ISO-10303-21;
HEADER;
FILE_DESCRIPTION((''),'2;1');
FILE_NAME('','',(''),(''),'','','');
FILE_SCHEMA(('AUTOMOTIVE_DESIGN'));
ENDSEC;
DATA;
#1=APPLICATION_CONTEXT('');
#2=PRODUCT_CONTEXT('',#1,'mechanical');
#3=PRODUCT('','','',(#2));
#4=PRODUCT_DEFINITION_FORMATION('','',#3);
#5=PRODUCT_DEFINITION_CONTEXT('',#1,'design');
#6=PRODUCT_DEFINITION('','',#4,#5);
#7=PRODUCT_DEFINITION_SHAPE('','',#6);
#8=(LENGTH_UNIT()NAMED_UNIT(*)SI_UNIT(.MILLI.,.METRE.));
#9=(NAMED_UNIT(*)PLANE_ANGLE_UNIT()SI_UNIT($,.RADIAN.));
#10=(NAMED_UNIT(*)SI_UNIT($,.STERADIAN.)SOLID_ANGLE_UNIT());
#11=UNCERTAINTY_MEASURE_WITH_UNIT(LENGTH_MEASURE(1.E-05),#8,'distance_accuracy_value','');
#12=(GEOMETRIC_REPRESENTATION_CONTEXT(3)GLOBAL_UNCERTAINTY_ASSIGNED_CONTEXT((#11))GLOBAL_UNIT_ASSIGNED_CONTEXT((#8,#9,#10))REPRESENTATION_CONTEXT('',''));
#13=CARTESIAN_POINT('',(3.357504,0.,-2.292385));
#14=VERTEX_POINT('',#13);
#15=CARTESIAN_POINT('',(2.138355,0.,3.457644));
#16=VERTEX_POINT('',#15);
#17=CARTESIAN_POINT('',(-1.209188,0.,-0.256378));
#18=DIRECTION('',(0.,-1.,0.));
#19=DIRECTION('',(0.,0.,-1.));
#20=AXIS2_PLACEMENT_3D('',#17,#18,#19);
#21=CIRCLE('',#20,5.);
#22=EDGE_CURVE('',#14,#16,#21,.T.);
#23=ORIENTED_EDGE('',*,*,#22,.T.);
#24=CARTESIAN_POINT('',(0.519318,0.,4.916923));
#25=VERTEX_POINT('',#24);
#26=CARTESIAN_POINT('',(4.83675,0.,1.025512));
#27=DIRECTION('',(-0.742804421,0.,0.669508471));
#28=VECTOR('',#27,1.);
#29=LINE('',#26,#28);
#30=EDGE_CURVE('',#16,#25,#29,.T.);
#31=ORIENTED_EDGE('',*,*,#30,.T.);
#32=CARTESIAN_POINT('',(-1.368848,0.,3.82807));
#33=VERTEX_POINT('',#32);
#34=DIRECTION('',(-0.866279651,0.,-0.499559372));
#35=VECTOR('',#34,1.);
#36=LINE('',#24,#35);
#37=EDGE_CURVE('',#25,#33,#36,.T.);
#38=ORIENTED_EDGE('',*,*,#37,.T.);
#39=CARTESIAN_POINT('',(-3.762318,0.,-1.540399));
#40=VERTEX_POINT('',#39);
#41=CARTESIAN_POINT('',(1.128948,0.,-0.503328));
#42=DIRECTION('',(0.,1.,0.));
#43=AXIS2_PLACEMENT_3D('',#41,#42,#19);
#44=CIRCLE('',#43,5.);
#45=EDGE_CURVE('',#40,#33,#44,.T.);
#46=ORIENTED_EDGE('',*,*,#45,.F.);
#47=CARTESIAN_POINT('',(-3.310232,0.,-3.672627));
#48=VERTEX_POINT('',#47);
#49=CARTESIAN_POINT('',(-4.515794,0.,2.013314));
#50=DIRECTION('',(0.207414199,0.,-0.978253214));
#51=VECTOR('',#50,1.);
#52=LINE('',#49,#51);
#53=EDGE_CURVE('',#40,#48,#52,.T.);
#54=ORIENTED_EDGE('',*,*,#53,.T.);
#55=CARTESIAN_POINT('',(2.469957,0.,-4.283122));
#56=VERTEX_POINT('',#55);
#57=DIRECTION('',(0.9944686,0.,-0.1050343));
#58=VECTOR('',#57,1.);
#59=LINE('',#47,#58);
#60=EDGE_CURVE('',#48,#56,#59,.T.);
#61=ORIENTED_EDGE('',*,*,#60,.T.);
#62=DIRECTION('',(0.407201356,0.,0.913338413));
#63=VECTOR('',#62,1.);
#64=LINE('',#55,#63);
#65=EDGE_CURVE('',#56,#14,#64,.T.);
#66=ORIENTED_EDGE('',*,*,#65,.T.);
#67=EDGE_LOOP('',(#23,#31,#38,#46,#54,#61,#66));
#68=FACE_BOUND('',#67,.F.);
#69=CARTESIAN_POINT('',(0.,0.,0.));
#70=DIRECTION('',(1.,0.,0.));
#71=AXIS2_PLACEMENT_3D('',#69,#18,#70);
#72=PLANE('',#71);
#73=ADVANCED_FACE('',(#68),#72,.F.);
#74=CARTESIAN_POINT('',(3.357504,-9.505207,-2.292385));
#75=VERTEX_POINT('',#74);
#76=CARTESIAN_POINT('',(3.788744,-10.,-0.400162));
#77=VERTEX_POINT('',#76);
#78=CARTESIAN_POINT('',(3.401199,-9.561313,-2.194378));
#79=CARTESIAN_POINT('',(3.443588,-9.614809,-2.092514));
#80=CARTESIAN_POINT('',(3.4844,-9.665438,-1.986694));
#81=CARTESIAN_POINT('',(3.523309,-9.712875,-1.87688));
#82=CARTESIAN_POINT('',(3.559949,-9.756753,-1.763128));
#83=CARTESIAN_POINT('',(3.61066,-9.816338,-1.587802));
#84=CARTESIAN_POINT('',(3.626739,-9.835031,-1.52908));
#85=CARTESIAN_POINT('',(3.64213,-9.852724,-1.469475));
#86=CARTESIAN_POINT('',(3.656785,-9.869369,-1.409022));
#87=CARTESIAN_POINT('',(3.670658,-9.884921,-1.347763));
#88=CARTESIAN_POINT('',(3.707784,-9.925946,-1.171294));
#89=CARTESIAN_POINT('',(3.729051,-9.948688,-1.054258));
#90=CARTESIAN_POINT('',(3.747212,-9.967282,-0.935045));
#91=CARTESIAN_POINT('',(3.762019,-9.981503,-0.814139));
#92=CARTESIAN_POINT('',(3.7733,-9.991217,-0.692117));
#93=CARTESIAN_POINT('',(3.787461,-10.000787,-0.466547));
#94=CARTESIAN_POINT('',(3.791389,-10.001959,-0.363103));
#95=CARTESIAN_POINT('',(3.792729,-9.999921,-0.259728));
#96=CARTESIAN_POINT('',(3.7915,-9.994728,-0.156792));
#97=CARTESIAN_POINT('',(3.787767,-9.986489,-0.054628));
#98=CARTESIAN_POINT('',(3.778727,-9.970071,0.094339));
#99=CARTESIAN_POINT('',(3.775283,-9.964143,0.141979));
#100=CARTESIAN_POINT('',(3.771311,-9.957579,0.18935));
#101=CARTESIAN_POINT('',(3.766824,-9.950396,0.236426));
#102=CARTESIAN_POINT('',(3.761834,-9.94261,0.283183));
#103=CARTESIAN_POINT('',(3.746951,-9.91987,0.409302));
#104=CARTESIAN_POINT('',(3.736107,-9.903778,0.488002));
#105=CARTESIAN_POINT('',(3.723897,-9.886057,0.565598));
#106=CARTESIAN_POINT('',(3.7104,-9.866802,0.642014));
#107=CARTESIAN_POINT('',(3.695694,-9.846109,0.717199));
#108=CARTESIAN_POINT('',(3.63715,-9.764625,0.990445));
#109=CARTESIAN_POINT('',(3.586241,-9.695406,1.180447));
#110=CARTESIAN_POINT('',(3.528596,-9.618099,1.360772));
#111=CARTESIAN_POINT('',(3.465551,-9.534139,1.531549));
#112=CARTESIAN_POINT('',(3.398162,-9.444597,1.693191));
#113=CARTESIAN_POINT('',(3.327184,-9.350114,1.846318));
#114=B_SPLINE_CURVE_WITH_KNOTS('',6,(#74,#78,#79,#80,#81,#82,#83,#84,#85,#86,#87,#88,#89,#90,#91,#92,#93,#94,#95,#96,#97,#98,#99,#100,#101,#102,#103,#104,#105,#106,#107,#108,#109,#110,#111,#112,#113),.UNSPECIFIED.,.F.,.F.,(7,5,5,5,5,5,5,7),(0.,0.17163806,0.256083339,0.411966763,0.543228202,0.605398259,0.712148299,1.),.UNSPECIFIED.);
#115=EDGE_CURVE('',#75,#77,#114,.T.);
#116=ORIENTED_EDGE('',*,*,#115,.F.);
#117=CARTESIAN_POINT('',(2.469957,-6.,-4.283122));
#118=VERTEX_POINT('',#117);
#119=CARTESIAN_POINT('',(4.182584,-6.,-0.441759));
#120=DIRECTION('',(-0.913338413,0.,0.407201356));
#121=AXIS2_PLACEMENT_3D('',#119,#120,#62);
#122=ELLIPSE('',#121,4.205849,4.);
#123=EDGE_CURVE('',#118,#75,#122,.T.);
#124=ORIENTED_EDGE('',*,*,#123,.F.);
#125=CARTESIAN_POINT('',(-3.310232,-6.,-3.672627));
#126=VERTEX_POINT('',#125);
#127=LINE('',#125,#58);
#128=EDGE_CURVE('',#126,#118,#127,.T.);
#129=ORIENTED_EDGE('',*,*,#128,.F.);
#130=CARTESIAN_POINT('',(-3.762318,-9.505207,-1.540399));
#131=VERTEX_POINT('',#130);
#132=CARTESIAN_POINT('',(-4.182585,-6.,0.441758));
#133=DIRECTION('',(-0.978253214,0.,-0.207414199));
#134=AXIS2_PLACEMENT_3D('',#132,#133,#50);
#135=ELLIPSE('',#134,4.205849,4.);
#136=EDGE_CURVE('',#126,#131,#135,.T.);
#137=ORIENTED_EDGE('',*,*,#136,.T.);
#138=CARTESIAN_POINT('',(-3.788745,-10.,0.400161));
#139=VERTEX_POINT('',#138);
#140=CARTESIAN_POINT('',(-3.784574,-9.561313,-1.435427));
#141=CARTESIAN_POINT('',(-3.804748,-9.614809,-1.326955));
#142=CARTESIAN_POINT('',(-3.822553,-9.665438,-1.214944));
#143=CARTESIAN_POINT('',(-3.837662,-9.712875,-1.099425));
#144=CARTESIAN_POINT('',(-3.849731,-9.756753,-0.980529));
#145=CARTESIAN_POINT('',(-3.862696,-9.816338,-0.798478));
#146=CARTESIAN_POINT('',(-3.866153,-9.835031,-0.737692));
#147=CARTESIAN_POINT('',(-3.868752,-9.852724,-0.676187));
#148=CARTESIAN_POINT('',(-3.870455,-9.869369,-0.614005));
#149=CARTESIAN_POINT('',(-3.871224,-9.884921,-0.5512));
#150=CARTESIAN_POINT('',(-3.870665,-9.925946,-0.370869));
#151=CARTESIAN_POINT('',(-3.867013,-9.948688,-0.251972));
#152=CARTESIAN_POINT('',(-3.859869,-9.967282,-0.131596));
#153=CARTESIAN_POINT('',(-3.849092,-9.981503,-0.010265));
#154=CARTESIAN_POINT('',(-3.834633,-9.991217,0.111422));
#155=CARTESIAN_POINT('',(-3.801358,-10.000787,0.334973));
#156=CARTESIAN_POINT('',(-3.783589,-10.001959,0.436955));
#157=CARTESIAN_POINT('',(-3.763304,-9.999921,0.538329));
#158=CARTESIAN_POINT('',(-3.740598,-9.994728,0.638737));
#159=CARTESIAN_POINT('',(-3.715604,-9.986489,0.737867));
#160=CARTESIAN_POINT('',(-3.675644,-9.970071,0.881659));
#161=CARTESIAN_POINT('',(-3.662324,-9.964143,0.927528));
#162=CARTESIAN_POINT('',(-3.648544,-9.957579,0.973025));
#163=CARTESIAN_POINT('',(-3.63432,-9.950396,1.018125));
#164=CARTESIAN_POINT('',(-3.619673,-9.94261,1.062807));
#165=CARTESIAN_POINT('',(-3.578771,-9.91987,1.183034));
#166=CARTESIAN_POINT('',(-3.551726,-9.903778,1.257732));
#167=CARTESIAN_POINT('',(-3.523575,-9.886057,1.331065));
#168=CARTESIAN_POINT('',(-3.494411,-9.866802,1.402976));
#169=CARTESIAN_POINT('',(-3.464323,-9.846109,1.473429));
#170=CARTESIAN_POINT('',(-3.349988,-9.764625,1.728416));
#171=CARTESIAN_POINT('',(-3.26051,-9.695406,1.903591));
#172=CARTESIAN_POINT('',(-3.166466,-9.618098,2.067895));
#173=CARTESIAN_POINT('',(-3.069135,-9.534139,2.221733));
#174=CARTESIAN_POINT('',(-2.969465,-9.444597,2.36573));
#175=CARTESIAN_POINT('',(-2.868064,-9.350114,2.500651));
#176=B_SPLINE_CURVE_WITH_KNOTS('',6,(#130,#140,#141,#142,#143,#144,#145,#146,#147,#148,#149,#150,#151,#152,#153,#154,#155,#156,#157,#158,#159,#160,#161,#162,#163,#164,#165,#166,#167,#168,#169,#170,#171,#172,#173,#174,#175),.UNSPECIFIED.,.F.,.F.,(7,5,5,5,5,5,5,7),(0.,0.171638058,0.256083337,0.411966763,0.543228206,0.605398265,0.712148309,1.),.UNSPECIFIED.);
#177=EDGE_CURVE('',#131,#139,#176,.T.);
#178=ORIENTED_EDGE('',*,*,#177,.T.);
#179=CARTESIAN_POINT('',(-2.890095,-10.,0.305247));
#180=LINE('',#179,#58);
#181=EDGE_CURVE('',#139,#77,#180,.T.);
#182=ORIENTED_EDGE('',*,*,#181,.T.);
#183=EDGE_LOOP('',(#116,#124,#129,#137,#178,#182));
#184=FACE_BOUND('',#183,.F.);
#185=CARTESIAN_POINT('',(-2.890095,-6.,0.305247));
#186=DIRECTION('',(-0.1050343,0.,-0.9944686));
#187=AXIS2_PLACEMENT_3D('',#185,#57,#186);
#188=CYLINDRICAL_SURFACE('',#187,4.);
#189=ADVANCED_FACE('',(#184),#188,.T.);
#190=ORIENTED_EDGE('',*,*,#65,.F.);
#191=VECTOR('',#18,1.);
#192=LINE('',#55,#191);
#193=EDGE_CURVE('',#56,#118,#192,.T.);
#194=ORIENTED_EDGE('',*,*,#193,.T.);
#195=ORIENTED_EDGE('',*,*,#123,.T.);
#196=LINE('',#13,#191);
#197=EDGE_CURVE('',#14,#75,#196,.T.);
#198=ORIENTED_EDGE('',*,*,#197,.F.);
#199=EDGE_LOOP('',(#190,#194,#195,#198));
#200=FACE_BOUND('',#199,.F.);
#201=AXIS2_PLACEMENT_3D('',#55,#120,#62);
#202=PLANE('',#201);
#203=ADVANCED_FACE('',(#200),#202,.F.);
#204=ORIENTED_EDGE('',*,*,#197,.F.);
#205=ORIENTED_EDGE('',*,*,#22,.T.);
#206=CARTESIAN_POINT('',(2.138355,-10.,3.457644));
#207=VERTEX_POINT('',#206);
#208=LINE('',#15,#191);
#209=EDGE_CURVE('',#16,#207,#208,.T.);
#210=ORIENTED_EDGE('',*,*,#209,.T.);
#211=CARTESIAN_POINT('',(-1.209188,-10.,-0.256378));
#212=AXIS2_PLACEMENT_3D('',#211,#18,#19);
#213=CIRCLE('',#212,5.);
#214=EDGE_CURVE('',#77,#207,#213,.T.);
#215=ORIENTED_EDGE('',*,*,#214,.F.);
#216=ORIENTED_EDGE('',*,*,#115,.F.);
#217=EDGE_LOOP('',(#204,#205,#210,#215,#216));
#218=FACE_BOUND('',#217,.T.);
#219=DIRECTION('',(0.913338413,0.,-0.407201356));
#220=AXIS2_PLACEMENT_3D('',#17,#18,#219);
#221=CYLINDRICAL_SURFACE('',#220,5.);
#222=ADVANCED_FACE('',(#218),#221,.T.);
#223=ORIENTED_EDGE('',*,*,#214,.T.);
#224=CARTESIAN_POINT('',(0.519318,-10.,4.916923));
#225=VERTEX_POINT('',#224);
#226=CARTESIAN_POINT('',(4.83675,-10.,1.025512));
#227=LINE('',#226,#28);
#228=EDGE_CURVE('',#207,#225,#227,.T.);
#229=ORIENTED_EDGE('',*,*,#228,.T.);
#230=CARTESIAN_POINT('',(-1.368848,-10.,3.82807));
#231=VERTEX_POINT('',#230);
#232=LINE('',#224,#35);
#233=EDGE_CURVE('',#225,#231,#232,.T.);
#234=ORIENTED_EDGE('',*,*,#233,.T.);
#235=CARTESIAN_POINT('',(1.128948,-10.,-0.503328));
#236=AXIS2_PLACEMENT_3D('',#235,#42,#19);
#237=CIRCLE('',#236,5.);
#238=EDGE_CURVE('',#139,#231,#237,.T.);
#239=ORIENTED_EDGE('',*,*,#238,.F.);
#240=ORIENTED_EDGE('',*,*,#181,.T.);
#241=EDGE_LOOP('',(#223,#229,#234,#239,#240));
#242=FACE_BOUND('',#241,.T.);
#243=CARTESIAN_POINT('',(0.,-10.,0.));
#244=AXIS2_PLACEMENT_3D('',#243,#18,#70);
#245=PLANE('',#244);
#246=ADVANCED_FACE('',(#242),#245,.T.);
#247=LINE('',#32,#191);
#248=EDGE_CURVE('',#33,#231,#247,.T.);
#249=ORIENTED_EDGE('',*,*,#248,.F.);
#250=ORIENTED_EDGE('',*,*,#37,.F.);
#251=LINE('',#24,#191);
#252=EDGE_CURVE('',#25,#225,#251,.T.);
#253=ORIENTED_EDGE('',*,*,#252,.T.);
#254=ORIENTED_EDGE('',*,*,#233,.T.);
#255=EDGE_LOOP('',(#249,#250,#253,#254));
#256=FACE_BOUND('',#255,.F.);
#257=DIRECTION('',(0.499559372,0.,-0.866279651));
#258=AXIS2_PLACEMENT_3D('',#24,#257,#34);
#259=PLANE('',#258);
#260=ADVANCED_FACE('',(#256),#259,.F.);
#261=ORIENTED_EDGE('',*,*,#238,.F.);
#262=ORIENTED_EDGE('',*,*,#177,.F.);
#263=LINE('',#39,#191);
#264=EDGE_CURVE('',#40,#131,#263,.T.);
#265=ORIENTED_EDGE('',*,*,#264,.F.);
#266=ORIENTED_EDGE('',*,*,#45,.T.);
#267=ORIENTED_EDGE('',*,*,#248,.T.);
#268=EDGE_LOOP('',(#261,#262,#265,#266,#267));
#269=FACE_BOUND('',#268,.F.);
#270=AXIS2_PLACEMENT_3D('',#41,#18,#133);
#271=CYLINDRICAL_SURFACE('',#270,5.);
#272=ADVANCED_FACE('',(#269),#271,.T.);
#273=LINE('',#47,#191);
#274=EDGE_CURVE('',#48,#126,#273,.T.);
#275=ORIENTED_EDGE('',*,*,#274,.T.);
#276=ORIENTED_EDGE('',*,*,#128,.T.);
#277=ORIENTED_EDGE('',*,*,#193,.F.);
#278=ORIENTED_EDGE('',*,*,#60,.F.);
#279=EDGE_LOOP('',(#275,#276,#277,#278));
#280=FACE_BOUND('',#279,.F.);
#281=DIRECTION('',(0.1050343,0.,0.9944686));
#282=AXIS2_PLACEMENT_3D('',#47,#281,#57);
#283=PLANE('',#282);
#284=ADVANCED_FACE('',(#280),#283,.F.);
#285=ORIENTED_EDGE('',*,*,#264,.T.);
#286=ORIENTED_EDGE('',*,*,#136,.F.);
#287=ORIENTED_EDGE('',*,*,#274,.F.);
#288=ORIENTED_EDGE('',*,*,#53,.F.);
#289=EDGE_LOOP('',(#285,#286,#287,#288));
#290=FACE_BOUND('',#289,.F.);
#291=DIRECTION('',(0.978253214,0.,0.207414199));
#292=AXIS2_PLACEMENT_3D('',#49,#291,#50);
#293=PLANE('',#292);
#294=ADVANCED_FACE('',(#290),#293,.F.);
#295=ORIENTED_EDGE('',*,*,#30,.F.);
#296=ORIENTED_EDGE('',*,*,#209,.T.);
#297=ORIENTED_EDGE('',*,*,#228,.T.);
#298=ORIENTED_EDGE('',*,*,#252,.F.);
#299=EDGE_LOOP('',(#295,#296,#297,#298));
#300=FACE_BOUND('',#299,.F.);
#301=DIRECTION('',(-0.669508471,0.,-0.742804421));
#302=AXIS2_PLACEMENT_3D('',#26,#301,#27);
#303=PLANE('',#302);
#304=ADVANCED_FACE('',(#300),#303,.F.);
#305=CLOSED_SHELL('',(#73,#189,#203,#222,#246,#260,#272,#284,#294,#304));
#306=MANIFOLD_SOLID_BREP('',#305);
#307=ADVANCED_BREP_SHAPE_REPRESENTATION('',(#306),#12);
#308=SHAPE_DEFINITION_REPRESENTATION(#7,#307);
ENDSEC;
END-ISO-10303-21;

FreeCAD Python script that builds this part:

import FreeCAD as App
import Part
import Sketcher

V = App.Vector


def edges_at(feature, points):
    """Names of the edges that pass closest to the given points."""
    edges = feature.Shape.Edges
    near = lambda p: min(range(len(edges)), key=lambda i: edges[i].distToShape(Part.Vertex(*p))[0])
    return sorted({f"Edge{near(p) + 1}" for p in points})


def add_polygon(sketch, points):
    """Adds a closed chain of lines whose ends are joined by coincident constraints."""
    first, n = sketch.GeometryCount, len(points)
    for a, b in zip(points, points[1:] + points[:1]):
        sketch.addGeometry(Part.LineSegment(App.Vector(*a, 0), App.Vector(*b, 0)), False)
    for i in range(n):
        sketch.addConstraint(Sketcher.Constraint("Coincident", first + i, 2, first + (i + 1) % n, 1))

doc = App.newDocument("Part")
body = doc.addObject("PartDesign::Body", "Body")

sketch1 = body.newObject("Sketcher::SketchObject", "Sketch")
sketch1.AttachmentSupport = (doc.getObject("XZ_Plane"), [""])
sketch1.MapMode = "FlatFace"
add_polygon(sketch1, [(5, 1), (1, 5), (-5, 2), (-3, -4), (2, -4)])
sketch1.addConstraint(Sketcher.Constraint("Equal", 0, 1))
sketch1.addConstraint(Sketcher.Constraint("Equal", 1, 2))
sketch1.addConstraint(Sketcher.Constraint("Equal", 2, 3))
sketch1.addConstraint(Sketcher.Constraint("Equal", 3, 4))
sketch1.addConstraint(Sketcher.Constraint("DistanceY", 4, 2, 1, 2, 0.987802))
sketch1.addConstraint(Sketcher.Constraint("Distance", 0, 5.81234))
sketch1.addConstraint(Sketcher.Constraint("DistanceY", 3, 2, -1, 1, 4.283122))
sketch1.addConstraint(Sketcher.Constraint("DistanceX", -1, 1, 4, 2, 4.83675))
sketch1.addConstraint(Sketcher.Constraint("DistanceX", 1, 2, 0, 2, 5.035112))
sketch1.addConstraint(Sketcher.Constraint("DistanceX", 1, 2, 2, 2, 1.205562))
pad1 = body.newObject("PartDesign::Pad", "Pad")
pad1.Profile = sketch1
pad1.Length = 10
doc.recompute()

fillet = body.newObject("PartDesign::Fillet", "Fillet")
fillet.Base = (pad1, edges_at(pad1, [(-0.42, -10, -3.978)]))
fillet.Radius = 4
doc.recompute()

fillet2 = body.newObject("PartDesign::Fillet", "Fillet001")
fillet2.Base = (fillet, edges_at(fillet, [(4.837, -5, 1.026)]))
fillet2.Radius = 5
doc.recompute()

fillet3 = body.newObject("PartDesign::Fillet", "Fillet002")
fillet3.Base = (fillet2, edges_at(fillet2, [(-4.516, -5, 2.013)]))
fillet3.Radius = 5

doc.recompute()
